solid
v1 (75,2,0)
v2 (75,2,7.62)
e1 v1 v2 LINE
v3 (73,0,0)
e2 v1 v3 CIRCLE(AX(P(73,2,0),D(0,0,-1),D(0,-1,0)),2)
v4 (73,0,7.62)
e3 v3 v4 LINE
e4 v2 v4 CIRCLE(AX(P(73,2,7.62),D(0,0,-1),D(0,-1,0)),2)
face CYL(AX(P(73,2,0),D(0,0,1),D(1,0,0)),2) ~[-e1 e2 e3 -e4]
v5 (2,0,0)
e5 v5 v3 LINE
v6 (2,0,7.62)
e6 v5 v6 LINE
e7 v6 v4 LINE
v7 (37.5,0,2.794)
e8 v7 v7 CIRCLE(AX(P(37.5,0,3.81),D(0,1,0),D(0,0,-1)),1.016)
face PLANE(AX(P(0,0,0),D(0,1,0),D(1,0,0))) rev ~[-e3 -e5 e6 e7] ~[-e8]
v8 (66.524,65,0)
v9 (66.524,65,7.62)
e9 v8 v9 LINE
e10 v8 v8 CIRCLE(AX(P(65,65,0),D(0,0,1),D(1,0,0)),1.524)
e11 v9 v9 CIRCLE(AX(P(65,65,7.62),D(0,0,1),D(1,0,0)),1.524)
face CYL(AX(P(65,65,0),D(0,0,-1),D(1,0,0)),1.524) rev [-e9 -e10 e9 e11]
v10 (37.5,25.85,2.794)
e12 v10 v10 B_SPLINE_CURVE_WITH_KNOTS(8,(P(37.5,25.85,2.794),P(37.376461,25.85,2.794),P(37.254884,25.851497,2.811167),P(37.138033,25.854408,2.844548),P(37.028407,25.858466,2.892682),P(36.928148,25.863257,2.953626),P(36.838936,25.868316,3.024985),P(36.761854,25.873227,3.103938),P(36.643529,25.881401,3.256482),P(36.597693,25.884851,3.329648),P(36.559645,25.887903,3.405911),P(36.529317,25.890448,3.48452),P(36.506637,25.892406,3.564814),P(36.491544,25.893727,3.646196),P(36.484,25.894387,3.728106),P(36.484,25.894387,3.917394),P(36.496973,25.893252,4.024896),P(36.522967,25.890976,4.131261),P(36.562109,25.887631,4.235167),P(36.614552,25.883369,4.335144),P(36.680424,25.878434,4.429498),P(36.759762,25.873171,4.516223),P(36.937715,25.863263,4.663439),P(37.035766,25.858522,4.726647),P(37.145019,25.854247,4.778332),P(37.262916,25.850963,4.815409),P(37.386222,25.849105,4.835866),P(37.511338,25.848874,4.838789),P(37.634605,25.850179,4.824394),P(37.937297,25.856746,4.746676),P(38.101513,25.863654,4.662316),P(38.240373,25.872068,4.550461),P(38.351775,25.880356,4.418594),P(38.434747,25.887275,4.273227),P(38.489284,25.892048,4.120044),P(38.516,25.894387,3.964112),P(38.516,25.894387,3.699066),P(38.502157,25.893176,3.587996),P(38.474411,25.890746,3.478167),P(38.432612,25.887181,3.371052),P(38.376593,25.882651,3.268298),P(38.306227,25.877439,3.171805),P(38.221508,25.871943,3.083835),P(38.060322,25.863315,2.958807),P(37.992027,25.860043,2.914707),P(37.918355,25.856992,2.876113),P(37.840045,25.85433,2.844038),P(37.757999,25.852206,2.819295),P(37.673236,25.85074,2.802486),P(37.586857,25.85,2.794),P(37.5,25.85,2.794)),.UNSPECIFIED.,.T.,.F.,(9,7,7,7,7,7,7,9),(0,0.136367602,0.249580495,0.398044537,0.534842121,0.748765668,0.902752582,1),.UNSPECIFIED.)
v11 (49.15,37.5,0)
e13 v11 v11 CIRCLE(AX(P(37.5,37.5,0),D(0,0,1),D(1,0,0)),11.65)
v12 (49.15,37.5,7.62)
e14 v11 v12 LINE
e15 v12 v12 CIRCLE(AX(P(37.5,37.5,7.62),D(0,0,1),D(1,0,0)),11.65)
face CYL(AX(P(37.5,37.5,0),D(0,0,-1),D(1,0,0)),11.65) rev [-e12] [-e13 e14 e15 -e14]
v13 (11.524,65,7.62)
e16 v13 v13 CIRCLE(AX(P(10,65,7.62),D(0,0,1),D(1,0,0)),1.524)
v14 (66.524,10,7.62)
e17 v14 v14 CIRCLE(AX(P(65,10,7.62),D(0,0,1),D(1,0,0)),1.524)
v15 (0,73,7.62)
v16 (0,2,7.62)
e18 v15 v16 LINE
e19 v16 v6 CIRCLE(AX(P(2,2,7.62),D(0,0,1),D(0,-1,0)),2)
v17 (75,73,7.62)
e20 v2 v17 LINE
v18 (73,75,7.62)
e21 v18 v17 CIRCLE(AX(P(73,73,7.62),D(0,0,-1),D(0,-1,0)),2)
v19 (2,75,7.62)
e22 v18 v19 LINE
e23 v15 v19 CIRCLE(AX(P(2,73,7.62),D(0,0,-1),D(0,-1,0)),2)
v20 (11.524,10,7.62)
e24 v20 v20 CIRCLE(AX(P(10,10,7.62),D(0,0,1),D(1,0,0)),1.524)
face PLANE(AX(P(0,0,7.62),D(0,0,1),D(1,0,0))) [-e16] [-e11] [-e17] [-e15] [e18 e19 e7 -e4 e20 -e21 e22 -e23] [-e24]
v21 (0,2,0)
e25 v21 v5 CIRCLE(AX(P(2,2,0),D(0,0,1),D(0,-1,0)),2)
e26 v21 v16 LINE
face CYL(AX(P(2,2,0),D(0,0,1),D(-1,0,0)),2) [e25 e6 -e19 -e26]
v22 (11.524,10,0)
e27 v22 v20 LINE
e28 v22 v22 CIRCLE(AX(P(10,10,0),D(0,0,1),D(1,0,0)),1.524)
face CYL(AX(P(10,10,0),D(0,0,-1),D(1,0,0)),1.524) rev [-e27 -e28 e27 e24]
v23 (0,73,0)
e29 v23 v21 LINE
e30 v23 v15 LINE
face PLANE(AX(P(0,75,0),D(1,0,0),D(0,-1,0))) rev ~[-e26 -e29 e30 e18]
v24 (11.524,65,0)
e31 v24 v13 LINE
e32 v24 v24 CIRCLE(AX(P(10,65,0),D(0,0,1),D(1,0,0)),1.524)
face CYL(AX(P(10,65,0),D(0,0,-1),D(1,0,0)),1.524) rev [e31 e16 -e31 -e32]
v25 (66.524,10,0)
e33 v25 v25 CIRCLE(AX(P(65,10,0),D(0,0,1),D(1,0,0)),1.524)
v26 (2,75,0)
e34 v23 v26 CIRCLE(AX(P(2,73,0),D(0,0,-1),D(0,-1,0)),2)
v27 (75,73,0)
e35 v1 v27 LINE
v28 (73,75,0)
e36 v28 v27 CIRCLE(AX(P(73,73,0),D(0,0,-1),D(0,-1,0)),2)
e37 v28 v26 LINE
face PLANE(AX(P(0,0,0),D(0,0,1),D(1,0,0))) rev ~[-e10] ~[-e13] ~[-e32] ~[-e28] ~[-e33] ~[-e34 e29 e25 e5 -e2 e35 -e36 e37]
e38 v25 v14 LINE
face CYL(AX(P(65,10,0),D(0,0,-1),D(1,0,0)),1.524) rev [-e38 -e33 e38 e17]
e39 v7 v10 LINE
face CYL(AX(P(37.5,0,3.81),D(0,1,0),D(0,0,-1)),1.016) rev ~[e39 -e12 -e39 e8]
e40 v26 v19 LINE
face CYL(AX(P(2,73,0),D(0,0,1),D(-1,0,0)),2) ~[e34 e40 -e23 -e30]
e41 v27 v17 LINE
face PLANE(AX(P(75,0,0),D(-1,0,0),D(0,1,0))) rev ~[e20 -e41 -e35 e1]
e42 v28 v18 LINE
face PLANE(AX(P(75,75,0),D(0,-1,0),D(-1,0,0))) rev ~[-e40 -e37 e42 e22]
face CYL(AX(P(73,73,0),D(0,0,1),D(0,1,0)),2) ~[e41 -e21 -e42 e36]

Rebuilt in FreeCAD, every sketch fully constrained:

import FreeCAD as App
import Part
import Sketcher


def edges_at(feature, points):
    """Names of the edges that pass closest to the given points."""
    edges = feature.Shape.Edges
    near = lambda p: min(range(len(edges)), key=lambda i: edges[i].distToShape(Part.Vertex(*p))[0])
    return sorted({f"Edge{near(p) + 1}" for p in points})


def add_polygon(sketch, points):
    """Adds a closed chain of lines whose ends are joined by coincident constraints."""
    first, n = sketch.GeometryCount, len(points)
    for a, b in zip(points, points[1:] + points[:1]):
        sketch.addGeometry(Part.LineSegment(App.Vector(*a, 0), App.Vector(*b, 0)), False)
    for i in range(n):
        sketch.addConstraint(Sketcher.Constraint("Coincident", first + i, 2, first + (i + 1) % n, 1))

doc = App.newDocument("Part")
params = doc.addObject("Spreadsheet::Sheet", "Params")
for row, (alias, value) in enumerate([
    ("sketch1_diameter", "23.3 mm"),
    ("sketch1_width", "75 mm"),
    ("pad1_length", "7.62 mm"),
    ("fillet_radius", "2 mm"),
    ("hole_diameter", "2.032 mm"),
    ("hole_depth", "30 mm"),
], start=1):
    params.set(f"A{row}", alias)
    params.set(f"B{row}", "=" + value)
    params.setAlias(f"B{row}", alias)

body = doc.addObject("PartDesign::Body", "Body")

sketch1 = body.newObject("Sketcher::SketchObject", "Sketch")
sketch1.AttachmentSupport = (doc.getObject("XY_Plane"), [""])
sketch1.MapMode = "FlatFace"
add_polygon(sketch1, [(0, 75), (0, 0), (75, 0), (75, 75)])
sketch1.addGeometry(Part.Circle(App.Vector(10, 10, 0), App.Vector(0, 0, 1), 1.524), False)
sketch1.addGeometry(Part.Circle(App.Vector(65, 10, 0), App.Vector(0, 0, 1), 1.524), False)
sketch1.addGeometry(Part.Circle(App.Vector(10, 65, 0), App.Vector(0, 0, 1), 1.524), False)
sketch1.addGeometry(Part.Circle(App.Vector(37.5, 37.5, 0), App.Vector(0, 0, 1), 11.65), False)
sketch1.addGeometry(Part.Circle(App.Vector(65, 65, 0), App.Vector(0, 0, 1), 1.524), False)
sketch1.addConstraint([
    Sketcher.Constraint("Vertical", 0),
    Sketcher.Constraint("Horizontal", 1),
    Sketcher.Constraint("Vertical", 2),
    Sketcher.Constraint("Horizontal", 3),
    Sketcher.Constraint("Coincident", 0, 2, -1, 1),
    Sketcher.Constraint("Equal", 4, 5),
    Sketcher.Constraint("Equal", 5, 6),
    Sketcher.Constraint("Equal", 6, 8),
    Sketcher.Constraint("Horizontal", 4, 3, 5, 3),
    Sketcher.Constraint("Horizontal", 6, 3, 8, 3),
    Sketcher.Constraint("Vertical", 4, 3, 6, 3),
    Sketcher.Constraint("Vertical", 5, 3, 8, 3),
    Sketcher.Constraint("Equal", 3, 0),
    Sketcher.Constraint("Diameter", 7, 23.3),
    Sketcher.Constraint("DistanceX", 1, 1, 1, 2, 75.0),
    Sketcher.Constraint("Diameter", 4, 3.048),
    Sketcher.Constraint("DistanceX", -1, 1, 4, 3, 10.0),
    Sketcher.Constraint("DistanceY", -1, 1, 4, 3, 10.0),
    Sketcher.Constraint("DistanceX", 5, 3, 1, 2, 10.0),
    Sketcher.Constraint("DistanceY", 8, 3, 2, 2, 10.0),
    Sketcher.Constraint("DistanceX", -1, 1, 7, 3, 37.5),
    Sketcher.Constraint("DistanceY", -1, 1, 7, 3, 37.5),
])
sketch1.setExpression("Constraints[17]", "Params.sketch1_diameter")
sketch1.setExpression("Constraints[18]", "Params.sketch1_width")
pad1 = body.newObject("PartDesign::Pad", "Pad")
pad1.Profile = sketch1
pad1.setExpression("Length", "Params.pad1_length")
doc.recompute()

fillet = body.newObject("PartDesign::Fillet", "Fillet")
fillet.Base = (pad1, edges_at(pad1, [
    (75, 0, 3.81),
    (75, 75, 3.81),
    (0, 0, 3.81),
    (0, 75, 3.81),
]))
fillet.setExpression("Radius", "Params.fillet_radius")

sketch2 = body.newObject("Sketcher::SketchObject", "Sketch001")
sketch2.AttachmentSupport = (doc.getObject("XZ_Plane"), [""])
sketch2.MapMode = "FlatFace"
sketch2.addGeometry(Part.Circle(App.Vector(37.5, 3.81, 0), App.Vector(0, 0, 1), 1.016), False)
sketch2.addConstraint([
    Sketcher.Constraint("Diameter", 0, 2.032),
    Sketcher.Constraint("DistanceX", -1, 1, 0, 3, 37.5),
    Sketcher.Constraint("DistanceY", -1, 1, 0, 3, 3.81),
])
doc.recompute()
hole = body.newObject("PartDesign::Hole", "Hole")
hole.Profile = sketch2
hole.ThreadType = "None"
hole.setExpression("Diameter", "Params.hole_diameter")
hole.DepthType = "Dimension"
hole.setExpression("Depth", "Params.hole_depth")
hole.DrillPoint = "Angled"
hole.DrillPointAngle = 118

doc.recompute()
